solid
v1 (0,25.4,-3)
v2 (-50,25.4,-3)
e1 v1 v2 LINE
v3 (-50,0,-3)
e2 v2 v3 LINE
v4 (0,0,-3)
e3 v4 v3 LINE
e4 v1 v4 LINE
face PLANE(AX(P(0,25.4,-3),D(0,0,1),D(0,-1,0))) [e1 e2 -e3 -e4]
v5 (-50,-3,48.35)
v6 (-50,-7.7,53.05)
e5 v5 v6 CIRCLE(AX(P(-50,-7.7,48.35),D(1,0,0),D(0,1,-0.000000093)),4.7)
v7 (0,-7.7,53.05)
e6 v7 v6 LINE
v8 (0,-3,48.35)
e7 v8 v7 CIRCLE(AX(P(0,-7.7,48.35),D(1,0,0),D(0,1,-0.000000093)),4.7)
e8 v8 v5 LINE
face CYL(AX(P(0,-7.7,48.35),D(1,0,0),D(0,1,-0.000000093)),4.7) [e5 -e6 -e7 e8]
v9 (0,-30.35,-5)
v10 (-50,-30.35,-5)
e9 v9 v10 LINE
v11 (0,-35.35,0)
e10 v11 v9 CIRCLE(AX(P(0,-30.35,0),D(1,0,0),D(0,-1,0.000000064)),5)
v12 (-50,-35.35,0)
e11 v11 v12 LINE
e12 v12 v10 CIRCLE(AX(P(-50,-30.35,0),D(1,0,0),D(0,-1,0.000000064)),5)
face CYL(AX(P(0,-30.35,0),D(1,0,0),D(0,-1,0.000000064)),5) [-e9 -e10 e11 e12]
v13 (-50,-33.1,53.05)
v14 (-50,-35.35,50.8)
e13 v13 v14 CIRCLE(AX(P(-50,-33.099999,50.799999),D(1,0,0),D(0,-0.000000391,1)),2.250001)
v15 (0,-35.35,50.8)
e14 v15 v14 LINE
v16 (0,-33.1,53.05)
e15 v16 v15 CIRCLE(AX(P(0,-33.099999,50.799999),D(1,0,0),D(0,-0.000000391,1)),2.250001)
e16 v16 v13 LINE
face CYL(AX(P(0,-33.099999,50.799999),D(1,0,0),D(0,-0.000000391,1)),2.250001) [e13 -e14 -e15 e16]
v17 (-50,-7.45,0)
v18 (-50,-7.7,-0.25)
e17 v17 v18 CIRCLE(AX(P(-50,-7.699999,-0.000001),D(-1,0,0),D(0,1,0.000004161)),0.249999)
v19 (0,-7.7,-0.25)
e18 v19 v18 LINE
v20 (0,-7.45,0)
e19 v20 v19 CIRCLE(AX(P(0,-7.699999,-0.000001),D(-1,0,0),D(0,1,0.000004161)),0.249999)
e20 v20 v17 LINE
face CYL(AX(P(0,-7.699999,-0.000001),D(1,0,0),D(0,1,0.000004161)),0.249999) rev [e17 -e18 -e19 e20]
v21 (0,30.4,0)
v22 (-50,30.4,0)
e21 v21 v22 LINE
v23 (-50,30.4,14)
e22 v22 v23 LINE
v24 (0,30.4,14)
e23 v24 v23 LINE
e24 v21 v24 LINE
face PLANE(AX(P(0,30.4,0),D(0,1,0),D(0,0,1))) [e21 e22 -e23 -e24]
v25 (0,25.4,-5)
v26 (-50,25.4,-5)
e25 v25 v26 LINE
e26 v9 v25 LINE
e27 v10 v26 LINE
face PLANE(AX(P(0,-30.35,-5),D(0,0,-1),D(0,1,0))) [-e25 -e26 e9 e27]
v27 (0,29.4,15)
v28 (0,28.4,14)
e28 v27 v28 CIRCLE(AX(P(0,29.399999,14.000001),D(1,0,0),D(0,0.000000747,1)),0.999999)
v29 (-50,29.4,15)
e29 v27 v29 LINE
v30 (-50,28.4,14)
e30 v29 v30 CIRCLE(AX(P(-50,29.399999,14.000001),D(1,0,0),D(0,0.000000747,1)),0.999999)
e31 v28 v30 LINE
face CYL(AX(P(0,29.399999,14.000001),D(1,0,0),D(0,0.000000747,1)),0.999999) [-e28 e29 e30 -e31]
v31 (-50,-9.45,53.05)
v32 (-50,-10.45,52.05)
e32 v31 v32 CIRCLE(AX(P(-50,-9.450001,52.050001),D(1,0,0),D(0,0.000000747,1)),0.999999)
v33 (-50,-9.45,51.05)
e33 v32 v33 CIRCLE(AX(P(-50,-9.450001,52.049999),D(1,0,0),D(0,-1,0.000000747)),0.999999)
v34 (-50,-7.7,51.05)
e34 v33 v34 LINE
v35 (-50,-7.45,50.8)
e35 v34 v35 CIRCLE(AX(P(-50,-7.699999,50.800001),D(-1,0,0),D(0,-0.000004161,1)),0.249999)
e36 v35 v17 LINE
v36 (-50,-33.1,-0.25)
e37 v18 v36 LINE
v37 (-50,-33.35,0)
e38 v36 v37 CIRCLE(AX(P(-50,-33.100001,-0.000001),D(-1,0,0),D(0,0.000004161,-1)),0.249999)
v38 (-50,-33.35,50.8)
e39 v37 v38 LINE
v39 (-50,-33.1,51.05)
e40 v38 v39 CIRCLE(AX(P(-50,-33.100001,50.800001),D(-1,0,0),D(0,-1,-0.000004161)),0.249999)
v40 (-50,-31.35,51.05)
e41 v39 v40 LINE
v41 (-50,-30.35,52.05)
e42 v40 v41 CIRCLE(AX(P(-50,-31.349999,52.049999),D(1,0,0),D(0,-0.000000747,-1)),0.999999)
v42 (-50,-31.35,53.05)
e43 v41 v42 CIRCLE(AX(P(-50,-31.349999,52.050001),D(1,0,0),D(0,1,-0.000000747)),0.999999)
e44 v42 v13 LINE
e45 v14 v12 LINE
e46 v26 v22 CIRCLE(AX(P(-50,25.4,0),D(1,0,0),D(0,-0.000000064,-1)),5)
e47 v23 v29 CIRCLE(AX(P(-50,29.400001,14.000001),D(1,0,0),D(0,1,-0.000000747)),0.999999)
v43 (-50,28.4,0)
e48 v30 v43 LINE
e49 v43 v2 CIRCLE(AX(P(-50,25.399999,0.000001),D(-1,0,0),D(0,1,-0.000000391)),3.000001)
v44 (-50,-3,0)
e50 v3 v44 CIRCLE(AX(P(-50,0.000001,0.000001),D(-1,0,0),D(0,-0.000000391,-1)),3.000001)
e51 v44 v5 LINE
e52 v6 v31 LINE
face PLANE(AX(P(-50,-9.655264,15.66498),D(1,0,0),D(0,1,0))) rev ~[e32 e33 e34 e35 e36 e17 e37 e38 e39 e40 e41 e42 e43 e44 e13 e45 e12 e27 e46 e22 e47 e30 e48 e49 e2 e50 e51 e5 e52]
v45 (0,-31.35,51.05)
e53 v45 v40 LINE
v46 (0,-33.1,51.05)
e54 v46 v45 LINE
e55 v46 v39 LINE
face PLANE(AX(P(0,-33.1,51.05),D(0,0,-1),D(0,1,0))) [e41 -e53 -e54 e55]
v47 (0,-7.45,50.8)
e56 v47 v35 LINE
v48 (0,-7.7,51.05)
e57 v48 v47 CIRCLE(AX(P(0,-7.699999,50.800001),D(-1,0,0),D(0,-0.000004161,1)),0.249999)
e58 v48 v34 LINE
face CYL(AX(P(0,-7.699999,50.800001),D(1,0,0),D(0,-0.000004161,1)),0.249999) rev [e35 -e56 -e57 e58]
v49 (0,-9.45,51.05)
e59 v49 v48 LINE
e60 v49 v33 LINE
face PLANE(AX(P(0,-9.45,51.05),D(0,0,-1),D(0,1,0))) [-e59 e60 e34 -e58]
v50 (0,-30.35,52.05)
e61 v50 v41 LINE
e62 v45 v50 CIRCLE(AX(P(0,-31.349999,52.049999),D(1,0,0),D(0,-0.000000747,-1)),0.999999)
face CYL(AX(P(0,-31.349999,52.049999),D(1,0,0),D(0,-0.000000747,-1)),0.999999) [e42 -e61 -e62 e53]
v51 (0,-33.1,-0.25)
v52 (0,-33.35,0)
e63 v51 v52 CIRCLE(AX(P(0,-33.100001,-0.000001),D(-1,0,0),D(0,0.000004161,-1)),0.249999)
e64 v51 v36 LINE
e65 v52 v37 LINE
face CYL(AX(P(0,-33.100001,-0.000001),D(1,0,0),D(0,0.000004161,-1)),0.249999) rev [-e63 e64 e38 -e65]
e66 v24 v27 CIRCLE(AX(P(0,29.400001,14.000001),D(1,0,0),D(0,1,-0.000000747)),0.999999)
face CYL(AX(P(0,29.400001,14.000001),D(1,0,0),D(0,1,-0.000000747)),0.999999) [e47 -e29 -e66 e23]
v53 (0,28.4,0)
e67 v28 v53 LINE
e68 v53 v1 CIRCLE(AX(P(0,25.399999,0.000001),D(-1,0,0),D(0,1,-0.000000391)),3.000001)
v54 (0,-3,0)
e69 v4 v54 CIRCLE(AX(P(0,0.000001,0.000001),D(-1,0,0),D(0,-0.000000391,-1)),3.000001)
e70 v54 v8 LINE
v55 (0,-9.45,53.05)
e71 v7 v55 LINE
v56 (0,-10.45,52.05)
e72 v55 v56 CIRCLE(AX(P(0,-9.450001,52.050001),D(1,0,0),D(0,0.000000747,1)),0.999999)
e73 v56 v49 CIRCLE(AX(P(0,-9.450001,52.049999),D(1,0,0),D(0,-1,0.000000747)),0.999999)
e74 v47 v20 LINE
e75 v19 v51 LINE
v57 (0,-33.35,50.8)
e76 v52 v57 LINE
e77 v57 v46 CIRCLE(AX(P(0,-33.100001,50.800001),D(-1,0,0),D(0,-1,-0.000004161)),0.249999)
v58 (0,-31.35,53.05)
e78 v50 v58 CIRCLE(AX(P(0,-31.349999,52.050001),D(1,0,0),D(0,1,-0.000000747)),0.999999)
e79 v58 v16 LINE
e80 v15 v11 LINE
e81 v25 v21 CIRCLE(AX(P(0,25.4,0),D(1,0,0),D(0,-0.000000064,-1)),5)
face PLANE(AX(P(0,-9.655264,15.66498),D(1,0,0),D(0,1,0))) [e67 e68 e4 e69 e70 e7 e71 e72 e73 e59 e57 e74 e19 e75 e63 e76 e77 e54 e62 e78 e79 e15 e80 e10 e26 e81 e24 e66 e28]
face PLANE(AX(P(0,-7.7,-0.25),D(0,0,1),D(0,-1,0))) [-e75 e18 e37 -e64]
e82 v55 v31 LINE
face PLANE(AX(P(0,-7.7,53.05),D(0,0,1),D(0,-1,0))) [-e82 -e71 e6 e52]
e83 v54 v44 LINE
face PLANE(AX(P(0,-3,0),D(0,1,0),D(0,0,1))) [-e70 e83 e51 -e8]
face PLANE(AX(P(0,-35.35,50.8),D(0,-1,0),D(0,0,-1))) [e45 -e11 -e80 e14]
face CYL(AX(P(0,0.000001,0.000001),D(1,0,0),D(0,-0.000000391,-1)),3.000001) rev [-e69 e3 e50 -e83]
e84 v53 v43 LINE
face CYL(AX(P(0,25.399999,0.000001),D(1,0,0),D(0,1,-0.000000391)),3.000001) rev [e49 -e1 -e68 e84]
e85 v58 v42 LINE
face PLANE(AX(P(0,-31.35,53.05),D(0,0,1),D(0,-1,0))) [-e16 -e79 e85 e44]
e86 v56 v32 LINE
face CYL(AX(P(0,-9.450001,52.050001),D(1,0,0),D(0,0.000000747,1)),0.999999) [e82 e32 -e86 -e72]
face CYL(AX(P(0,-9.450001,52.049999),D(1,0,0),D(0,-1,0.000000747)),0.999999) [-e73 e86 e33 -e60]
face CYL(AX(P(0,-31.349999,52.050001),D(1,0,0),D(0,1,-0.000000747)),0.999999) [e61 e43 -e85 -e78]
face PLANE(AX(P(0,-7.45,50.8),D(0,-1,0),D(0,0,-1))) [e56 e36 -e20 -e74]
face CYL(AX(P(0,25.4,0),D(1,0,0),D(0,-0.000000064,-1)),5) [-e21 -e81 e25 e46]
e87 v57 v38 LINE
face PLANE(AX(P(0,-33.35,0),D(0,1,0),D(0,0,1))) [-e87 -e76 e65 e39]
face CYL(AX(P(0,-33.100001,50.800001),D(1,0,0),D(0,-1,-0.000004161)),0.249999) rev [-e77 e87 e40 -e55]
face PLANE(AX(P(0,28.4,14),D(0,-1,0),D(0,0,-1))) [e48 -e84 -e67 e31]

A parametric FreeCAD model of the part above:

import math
import FreeCAD as App
import Part
import Sketcher

doc = App.newDocument("Part")
body = doc.addObject("PartDesign::Body", "Body")

# Sketch on YZ plane
sketch1 = doc.addObject("Sketcher::SketchObject", "Sketch")
body.addObject(sketch1)
sketch1.AttachmentSupport = (doc.YZ_Plane, [""])
sketch1.MapMode = "FlatFace"
sketch1.addGeometry([
    Part.LineSegment(App.Vector(-33.35, 0, 0), App.Vector(-33.35, 50.8, 0)),  # 0
    Part.ArcOfCircle(Part.Circle(App.Vector(-33.100001, 50.800001, 0), App.Vector(0, 0, 1), 0.249999), math.radians(89.999762), math.radians(180.000238)),  # 1
    Part.LineSegment(App.Vector(-33.1, 51.05, 0), App.Vector(-31.35, 51.05, 0)),  # 2
    Part.ArcOfCircle(Part.Circle(App.Vector(-31.349999, 52.049999, 0), App.Vector(0, 0, 1), 0.999999), math.radians(-90.000043), math.radians(0.000043)),  # 3
    Part.ArcOfCircle(Part.Circle(App.Vector(-31.349999, 52.050001, 0), App.Vector(0, 0, 1), 0.999999), math.radians(-0.000043), math.radians(90.000043)),  # 4
    Part.LineSegment(App.Vector(-31.35, 53.05, 0), App.Vector(-33.1, 53.05, 0)),  # 5
    Part.ArcOfCircle(Part.Circle(App.Vector(-33.099999, 50.799999, 0), App.Vector(0, 0, 1), 2.250001), math.radians(90.000022), math.radians(179.999978)),  # 6
    Part.LineSegment(App.Vector(-35.35, 50.8, 0), App.Vector(-35.35, 0, 0)),  # 7
    Part.ArcOfCircle(Part.Circle(App.Vector(-30.35, 0, 0), App.Vector(0, 0, 1), 5), math.radians(179.999996), math.radians(270.000004)),  # 8
    Part.LineSegment(App.Vector(-30.35, -5, 0), App.Vector(25.4, -5, 0)),  # 9
    Part.ArcOfCircle(Part.Circle(App.Vector(25.4, 0, 0), App.Vector(0, 0, 1), 5), math.radians(-90.000004), math.radians(0.000004)),  # 10
    Part.LineSegment(App.Vector(30.4, 0, 0), App.Vector(30.4, 14, 0)),  # 11
    Part.ArcOfCircle(Part.Circle(App.Vector(29.400001, 14.000001, 0), App.Vector(0, 0, 1), 0.999999), math.radians(-0.000043), math.radians(90.000043)),  # 12
    Part.ArcOfCircle(Part.Circle(App.Vector(29.399999, 14.000001, 0), App.Vector(0, 0, 1), 0.999999), math.radians(89.999957), math.radians(180.000043)),  # 13
    Part.LineSegment(App.Vector(28.4, 14, 0), App.Vector(28.4, 0, 0)),  # 14
    Part.ArcOfCircle(Part.Circle(App.Vector(25.399999, 0.000001, 0), App.Vector(0, 0, 1), 3.000001), math.radians(-89.999978), math.radians(-0.000022)),  # 15
    Part.LineSegment(App.Vector(25.4, -3, 0), App.Vector(0, -3, 0)),  # 16
    Part.ArcOfCircle(Part.Circle(App.Vector(0.000001, 0.000001, 0), App.Vector(0, 0, 1), 3.000001), math.radians(-179.999978), math.radians(-90.000022)),  # 17
    Part.LineSegment(App.Vector(-3, 0, 0), App.Vector(-3, 48.35, 0)),  # 18
    Part.ArcOfCircle(Part.Circle(App.Vector(-7.7, 48.35, 0), App.Vector(0, 0, 1), 4.7), math.radians(-0.000005), math.radians(90.000005)),  # 19
    Part.LineSegment(App.Vector(-7.7, 53.05, 0), App.Vector(-9.45, 53.05, 0)),  # 20
    Part.ArcOfCircle(Part.Circle(App.Vector(-9.450001, 52.050001, 0), App.Vector(0, 0, 1), 0.999999), math.radians(89.999957), math.radians(180.000043)),  # 21
    Part.ArcOfCircle(Part.Circle(App.Vector(-9.450001, 52.049999, 0), App.Vector(0, 0, 1), 0.999999), math.radians(179.999957), math.radians(270.000043)),  # 22
    Part.LineSegment(App.Vector(-9.45, 51.05, 0), App.Vector(-7.7, 51.05, 0)),  # 23
    Part.ArcOfCircle(Part.Circle(App.Vector(-7.699999, 50.800001, 0), App.Vector(0, 0, 1), 0.249999), math.radians(-0.000238), math.radians(90.000238)),  # 24
    Part.LineSegment(App.Vector(-7.45, 50.8, 0), App.Vector(-7.45, 0, 0)),  # 25
    Part.ArcOfCircle(Part.Circle(App.Vector(-7.699999, -0.000001, 0), App.Vector(0, 0, 1), 0.249999), math.radians(-90.000238), math.radians(0.000238)),  # 26
    Part.LineSegment(App.Vector(-7.7, -0.25, 0), App.Vector(-33.1, -0.25, 0)),  # 27
    Part.ArcOfCircle(Part.Circle(App.Vector(-33.100001, -0.000001, 0), App.Vector(0, 0, 1), 0.249999), math.radians(179.999762), math.radians(270.000238)),  # 28
], False)
sketch1.addConstraint([
    Sketcher.Constraint("Coincident", 0, 2, 1, 2),
    Sketcher.Constraint("Coincident", 1, 1, 2, 1),
    Sketcher.Constraint("Tangent", 2, 2, 3, 1),
    Sketcher.Constraint("Tangent", 3, 2, 4, 1),
    Sketcher.Constraint("Tangent", 4, 2, 5, 1),
    Sketcher.Constraint("Tangent", 5, 2, 6, 1),
    Sketcher.Constraint("Tangent", 6, 2, 7, 1),
    Sketcher.Constraint("Tangent", 7, 2, 8, 1),
    Sketcher.Constraint("Tangent", 8, 2, 9, 1),
    Sketcher.Constraint("Tangent", 9, 2, 10, 1),
    Sketcher.Constraint("Tangent", 10, 2, 11, 1),
    Sketcher.Constraint("Tangent", 11, 2, 12, 1),
    Sketcher.Constraint("Tangent", 12, 2, 13, 1),
    Sketcher.Constraint("Tangent", 13, 2, 14, 1),
    Sketcher.Constraint("Tangent", 14, 2, 15, 2),
    Sketcher.Constraint("Tangent", 15, 1, 16, 1),
    Sketcher.Constraint("Tangent", 16, 2, 17, 2),
    Sketcher.Constraint("Tangent", 17, 1, 18, 1),
    Sketcher.Constraint("Tangent", 18, 2, 19, 1),
    Sketcher.Constraint("Tangent", 19, 2, 20, 1),
    Sketcher.Constraint("Tangent", 20, 2, 21, 1),
    Sketcher.Constraint("Tangent", 21, 2, 22, 1),
    Sketcher.Constraint("Tangent", 22, 2, 23, 1),
    Sketcher.Constraint("Coincident", 23, 2, 24, 2),
    Sketcher.Constraint("Coincident", 24, 1, 25, 1),
    Sketcher.Constraint("Coincident", 25, 2, 26, 2),
    Sketcher.Constraint("Coincident", 26, 1, 27, 1),
    Sketcher.Constraint("Coincident", 27, 2, 28, 2),
    Sketcher.Constraint("Coincident", 28, 1, 0, 1),
    Sketcher.Constraint("Vertical", 0),
    Sketcher.Constraint("Horizontal", 2),
    Sketcher.Constraint("Horizontal", 5),
    Sketcher.Constraint("Vertical", 7),
    Sketcher.Constraint("Horizontal", 9),
    Sketcher.Constraint("Vertical", 11),
    Sketcher.Constraint("Vertical", 14),
    Sketcher.Constraint("Horizontal", 16),
    Sketcher.Constraint("Vertical", 18),
    Sketcher.Constraint("Horizontal", 20),
    Sketcher.Constraint("Horizontal", 23),
    Sketcher.Constraint("Vertical", 25),
    Sketcher.Constraint("Horizontal", 27),
    Sketcher.Constraint("Coincident", 17, 3, -1, 1),
    Sketcher.Constraint("Coincident", 6, 3, 1, 3),
    Sketcher.Constraint("Coincident", 15, 3, 10, 3),
    Sketcher.Constraint("Equal", 3, 4),
    Sketcher.Constraint("Equal", 8, 10),
    Sketcher.Constraint("Equal", 4, 12),
    Sketcher.Constraint("Equal", 12, 13),
    Sketcher.Constraint("Equal", 15, 17),
    Sketcher.Constraint("Equal", 13, 21),
    Sketcher.Constraint("Equal", 21, 22),
    Sketcher.Constraint("Equal", 1, 24),
    Sketcher.Constraint("Equal", 24, 26),
    Sketcher.Constraint("Equal", 26, 28),
    Sketcher.Constraint("PointOnObject", 26, 3, -1),
    Sketcher.Constraint("PointOnObject", 25, 2, -1),
    Sketcher.Constraint("PointOnObject", 28, 1, -1),
    Sketcher.Constraint("Horizontal", 4, 3, 21, 3),
    Sketcher.Constraint("Horizontal", 24, 3, 0, 2),
    Sketcher.Constraint("Horizontal", 22, 3, 3, 2),
    Sketcher.Constraint("Horizontal", 3, 2, 21, 2),
    Sketcher.Constraint("Horizontal", 6, 2, 24, 1),
    Sketcher.Constraint("Vertical", 19, 3, 24, 3),
    Sketcher.Constraint("Vertical", 28, 3, 1, 1),
    Sketcher.Constraint("Vertical", 8, 3, 3, 2),
    Sketcher.Constraint("Vertical", 13, 3, 12, 2),
    Sketcher.Constraint("Vertical", 19, 2, 23, 2),
    Sketcher.Constraint("Vertical", 23, 2, 26, 1),
    Sketcher.Constraint("Vertical", 5, 2, 27, 2),
    Sketcher.Constraint("Equal", 5, 20),
    Sketcher.Constraint("Equal", 16, 27),
    Sketcher.Constraint("Radius", 3, 0.999999),
    Sketcher.Constraint("Radius", 8, 5.0),
    Sketcher.Constraint("Radius", 19, 4.7),
    Sketcher.Constraint("DistanceY", 11, 1, 11, 2, 14.0),
    Sketcher.Constraint("Radius", 1, 0.249999),
    Sketcher.Constraint("DistanceX", 16, 2, 16, 1, 25.4),
    Sketcher.Constraint("DistanceY", 0, 1, 0, 2, 50.8),
])
pad1 = doc.addObject("PartDesign::Pad", "Pad")
body.addObject(pad1)
pad1.Profile = sketch1
pad1.Length = 50
pad1.Reversed = True

doc.recompute()
